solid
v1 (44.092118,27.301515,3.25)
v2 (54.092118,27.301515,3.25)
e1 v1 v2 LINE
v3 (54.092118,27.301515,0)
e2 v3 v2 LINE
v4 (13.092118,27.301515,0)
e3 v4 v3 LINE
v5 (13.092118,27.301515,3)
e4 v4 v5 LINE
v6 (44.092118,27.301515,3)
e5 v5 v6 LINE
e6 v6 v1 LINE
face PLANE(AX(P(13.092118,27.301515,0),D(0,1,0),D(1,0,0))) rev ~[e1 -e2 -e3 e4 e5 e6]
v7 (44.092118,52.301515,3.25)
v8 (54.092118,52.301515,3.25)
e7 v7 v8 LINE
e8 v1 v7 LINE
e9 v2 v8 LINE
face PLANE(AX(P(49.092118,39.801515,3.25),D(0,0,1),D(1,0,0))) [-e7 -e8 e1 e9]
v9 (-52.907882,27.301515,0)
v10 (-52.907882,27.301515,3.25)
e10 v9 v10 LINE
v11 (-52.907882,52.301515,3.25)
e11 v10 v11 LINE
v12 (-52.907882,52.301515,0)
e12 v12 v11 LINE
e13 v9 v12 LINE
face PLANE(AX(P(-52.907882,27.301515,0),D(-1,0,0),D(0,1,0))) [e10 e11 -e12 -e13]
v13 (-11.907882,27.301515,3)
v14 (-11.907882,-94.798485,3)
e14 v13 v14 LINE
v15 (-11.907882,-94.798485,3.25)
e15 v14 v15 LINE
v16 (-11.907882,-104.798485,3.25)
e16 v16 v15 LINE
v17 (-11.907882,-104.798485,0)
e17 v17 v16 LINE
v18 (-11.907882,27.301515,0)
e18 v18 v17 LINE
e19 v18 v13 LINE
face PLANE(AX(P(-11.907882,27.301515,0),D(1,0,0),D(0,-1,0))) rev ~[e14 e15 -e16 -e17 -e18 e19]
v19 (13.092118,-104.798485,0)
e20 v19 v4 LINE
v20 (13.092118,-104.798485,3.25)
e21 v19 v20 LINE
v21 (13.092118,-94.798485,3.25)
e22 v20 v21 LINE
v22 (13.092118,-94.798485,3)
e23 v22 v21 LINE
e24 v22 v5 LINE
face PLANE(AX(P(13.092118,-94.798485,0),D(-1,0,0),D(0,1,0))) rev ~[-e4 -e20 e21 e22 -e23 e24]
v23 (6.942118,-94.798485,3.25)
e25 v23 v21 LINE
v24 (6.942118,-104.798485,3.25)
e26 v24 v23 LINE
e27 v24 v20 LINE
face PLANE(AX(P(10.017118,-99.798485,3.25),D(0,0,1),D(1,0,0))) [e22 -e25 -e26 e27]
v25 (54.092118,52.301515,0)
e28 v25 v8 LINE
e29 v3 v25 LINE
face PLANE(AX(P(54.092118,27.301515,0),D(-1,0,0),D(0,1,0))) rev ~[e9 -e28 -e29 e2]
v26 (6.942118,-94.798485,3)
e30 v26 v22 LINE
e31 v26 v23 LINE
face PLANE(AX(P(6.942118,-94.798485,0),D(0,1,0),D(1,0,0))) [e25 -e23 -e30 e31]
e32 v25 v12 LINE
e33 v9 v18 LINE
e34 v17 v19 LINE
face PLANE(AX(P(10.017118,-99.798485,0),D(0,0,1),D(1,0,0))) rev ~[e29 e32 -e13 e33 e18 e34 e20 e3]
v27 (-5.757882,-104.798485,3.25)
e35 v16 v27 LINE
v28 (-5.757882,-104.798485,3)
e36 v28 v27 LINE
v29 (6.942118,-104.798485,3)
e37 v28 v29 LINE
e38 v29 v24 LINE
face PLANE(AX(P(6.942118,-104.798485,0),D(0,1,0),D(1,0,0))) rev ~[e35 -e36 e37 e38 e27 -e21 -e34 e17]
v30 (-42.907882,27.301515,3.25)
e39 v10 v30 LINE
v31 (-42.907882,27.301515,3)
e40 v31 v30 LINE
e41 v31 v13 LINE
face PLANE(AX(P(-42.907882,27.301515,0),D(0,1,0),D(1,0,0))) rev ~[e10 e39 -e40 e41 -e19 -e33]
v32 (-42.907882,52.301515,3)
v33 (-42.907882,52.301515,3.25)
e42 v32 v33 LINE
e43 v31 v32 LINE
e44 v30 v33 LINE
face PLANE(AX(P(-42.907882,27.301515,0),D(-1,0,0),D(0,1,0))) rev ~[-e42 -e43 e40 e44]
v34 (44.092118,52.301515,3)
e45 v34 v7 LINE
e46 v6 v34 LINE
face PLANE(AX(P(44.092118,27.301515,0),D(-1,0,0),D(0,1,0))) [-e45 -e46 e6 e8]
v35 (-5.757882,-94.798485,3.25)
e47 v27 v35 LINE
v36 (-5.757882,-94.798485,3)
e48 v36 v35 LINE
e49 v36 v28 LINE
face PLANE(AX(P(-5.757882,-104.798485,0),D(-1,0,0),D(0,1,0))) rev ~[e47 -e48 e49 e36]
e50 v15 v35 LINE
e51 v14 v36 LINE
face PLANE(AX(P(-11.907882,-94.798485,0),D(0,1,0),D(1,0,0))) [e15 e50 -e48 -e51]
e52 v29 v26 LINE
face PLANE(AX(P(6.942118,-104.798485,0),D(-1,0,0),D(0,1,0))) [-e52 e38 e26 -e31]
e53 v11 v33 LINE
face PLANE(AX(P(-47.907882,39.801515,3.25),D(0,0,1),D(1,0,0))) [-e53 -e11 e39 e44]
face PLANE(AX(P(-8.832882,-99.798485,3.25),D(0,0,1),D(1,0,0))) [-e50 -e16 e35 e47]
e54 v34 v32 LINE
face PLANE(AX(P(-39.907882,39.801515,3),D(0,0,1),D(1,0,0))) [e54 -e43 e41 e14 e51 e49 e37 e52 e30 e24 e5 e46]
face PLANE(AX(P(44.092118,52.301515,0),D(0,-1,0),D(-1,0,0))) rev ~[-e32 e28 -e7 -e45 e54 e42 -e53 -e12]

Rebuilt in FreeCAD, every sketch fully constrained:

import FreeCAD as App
import Part
import Sketcher

V = App.Vector
Q = App.Units.Quantity

doc = App.newDocument("Part")
body = doc.addObject("PartDesign::Body", "Body")

# Sketch on XY plane
sketch1 = body.newObject("Sketcher::SketchObject", "Sketch")
sketch1.AttachmentSupport = (doc.getObject("XY_Plane"), [""])
sketch1.MapMode = "FlatFace"
sketch1.addGeometry(Part.LineSegment(V(-42.907882, 52.301515, 0), V(-42.907882, 27.301515, 0)), False)
sketch1.addGeometry(Part.LineSegment(V(-42.907882, 27.301515, 0), V(-11.907882, 27.301515, 0)), False)
sketch1.addGeometry(Part.LineSegment(V(-11.907882, 27.301515, 0), V(-11.907882, -94.798485, 0)), False)
sketch1.addGeometry(Part.LineSegment(V(-11.907882, -94.798485, 0), V(-5.757882, -94.798485, 0)), False)
sketch1.addGeometry(Part.LineSegment(V(-5.757882, -94.798485, 0), V(-5.757882, -104.798485, 0)), False)
sketch1.addGeometry(Part.LineSegment(V(-5.757882, -104.798485, 0), V(6.942118, -104.798485, 0)), False)
sketch1.addGeometry(Part.LineSegment(V(6.942118, -104.798485, 0), V(6.942118, -94.798485, 0)), False)
sketch1.addGeometry(Part.LineSegment(V(6.942118, -94.798485, 0), V(13.092118, -94.798485, 0)), False)
sketch1.addGeometry(Part.LineSegment(V(13.092118, -94.798485, 0), V(13.092118, 27.301515, 0)), False)
sketch1.addGeometry(Part.LineSegment(V(13.092118, 27.301515, 0), V(44.092118, 27.301515, 0)), False)
sketch1.addGeometry(Part.LineSegment(V(44.092118, 27.301515, 0), V(44.092118, 52.301515, 0)), False)
sketch1.addGeometry(Part.LineSegment(V(44.092118, 52.301515, 0), V(-42.907882, 52.301515, 0)), False)
sketch1.addConstraint(Sketcher.Constraint("Coincident", 0, 2, 1, 1))
sketch1.addConstraint(Sketcher.Constraint("Coincident", 1, 2, 2, 1))
sketch1.addConstraint(Sketcher.Constraint("Coincident", 2, 2, 3, 1))
sketch1.addConstraint(Sketcher.Constraint("Coincident", 3, 2, 4, 1))
sketch1.addConstraint(Sketcher.Constraint("Coincident", 4, 2, 5, 1))
sketch1.addConstraint(Sketcher.Constraint("Coincident", 5, 2, 6, 1))
sketch1.addConstraint(Sketcher.Constraint("Coincident", 6, 2, 7, 1))
sketch1.addConstraint(Sketcher.Constraint("Coincident", 7, 2, 8, 1))
sketch1.addConstraint(Sketcher.Constraint("Coincident", 8, 2, 9, 1))
sketch1.addConstraint(Sketcher.Constraint("Coincident", 9, 2, 10, 1))
sketch1.addConstraint(Sketcher.Constraint("Coincident", 10, 2, 11, 1))
sketch1.addConstraint(Sketcher.Constraint("Coincident", 11, 2, 0, 1))
sketch1.addConstraint(Sketcher.Constraint("Vertical", 0))
sketch1.addConstraint(Sketcher.Constraint("Horizontal", 1))
sketch1.addConstraint(Sketcher.Constraint("Vertical", 2))
sketch1.addConstraint(Sketcher.Constraint("Horizontal", 3))
sketch1.addConstraint(Sketcher.Constraint("Vertical", 4))
sketch1.addConstraint(Sketcher.Constraint("Horizontal", 5))
sketch1.addConstraint(Sketcher.Constraint("Vertical", 6))
sketch1.addConstraint(Sketcher.Constraint("Horizontal", 7))
sketch1.addConstraint(Sketcher.Constraint("Vertical", 8))
sketch1.addConstraint(Sketcher.Constraint("Horizontal", 9))
sketch1.addConstraint(Sketcher.Constraint("Vertical", 10))
sketch1.addConstraint(Sketcher.Constraint("Horizontal", 11))
sketch1.addConstraint(Sketcher.Constraint("Horizontal", 3, 2, 6, 2))
sketch1.addConstraint(Sketcher.Constraint("Horizontal", 1, 2, 8, 2))
sketch1.addConstraint(Sketcher.Constraint("Equal", 3, 7))
sketch1.addConstraint(Sketcher.Constraint("Equal", 1, 9))
sketch1.addConstraint(Sketcher.Constraint("DistanceX", 1, 1, 1, 2, Q("31 mm")))
sketch1.addConstraint(Sketcher.Constraint("DistanceX", 11, 2, 11, 1, Q("87 mm")))
sketch1.addConstraint(Sketcher.Constraint("DistanceY", 0, 2, 0, 1, Q("25 mm")))
sketch1.addConstraint(Sketcher.Constraint("DistanceY", 4, 2, 4, 1, Q("10 mm")))
sketch1.addConstraint(Sketcher.Constraint("DistanceX", 5, 1, 5, 2, Q("12.7 mm")))
sketch1.addConstraint(Sketcher.Constraint("DistanceY", 2, 2, 2, 1, Q("122.1 mm")))
sketch1.addConstraint(Sketcher.Constraint("DistanceX", 0, 2, -1, 1, Q("42.907882 mm")))
sketch1.addConstraint(Sketcher.Constraint("DistanceY", -1, 1, 0, 2, Q("27.301515 mm")))
pad1 = body.newObject("PartDesign::Pad", "Pad")
pad1.Profile = sketch1
pad1.Length = 3

# Sketch on XY plane
sketch2 = body.newObject("Sketcher::SketchObject", "Sketch001")
sketch2.AttachmentSupport = (doc.getObject("XY_Plane"), [""])
sketch2.MapMode = "FlatFace"
sketch2.addGeometry(Part.LineSegment(V(6.942118, -94.798485, 0), V(6.942118, -104.798485, 0)), False)
sketch2.addGeometry(Part.LineSegment(V(6.942118, -104.798485, 0), V(13.092118, -104.798485, 0)), False)
sketch2.addGeometry(Part.LineSegment(V(13.092118, -104.798485, 0), V(13.092118, -94.798485, 0)), False)
sketch2.addGeometry(Part.LineSegment(V(13.092118, -94.798485, 0), V(6.942118, -94.798485, 0)), False)
sketch2.addGeometry(Part.LineSegment(V(-11.907882, -94.798485, 0), V(-11.907882, -104.798485, 0)), False)
sketch2.addGeometry(Part.LineSegment(V(-11.907882, -104.798485, 0), V(-5.757882, -104.798485, 0)), False)
sketch2.addGeometry(Part.LineSegment(V(-5.757882, -104.798485, 0), V(-5.757882, -94.798485, 0)), False)
sketch2.addGeometry(Part.LineSegment(V(-5.757882, -94.798485, 0), V(-11.907882, -94.798485, 0)), False)
sketch2.addGeometry(Part.LineSegment(V(-52.907882, 52.301515, 0), V(-52.907882, 27.301515, 0)), False)
sketch2.addGeometry(Part.LineSegment(V(-52.907882, 27.301515, 0), V(-42.907882, 27.301515, 0)), False)
sketch2.addGeometry(Part.LineSegment(V(-42.907882, 27.301515, 0), V(-42.907882, 52.301515, 0)), False)
sketch2.addGeometry(Part.LineSegment(V(-42.907882, 52.301515, 0), V(-52.907882, 52.301515, 0)), False)
sketch2.addGeometry(Part.LineSegment(V(44.092118, 52.301515, 0), V(44.092118, 27.301515, 0)), False)
sketch2.addGeometry(Part.LineSegment(V(44.092118, 27.301515, 0), V(54.092118, 27.301515, 0)), False)
sketch2.addGeometry(Part.LineSegment(V(54.092118, 27.301515, 0), V(54.092118, 52.301515, 0)), False)
sketch2.addGeometry(Part.LineSegment(V(54.092118, 52.301515, 0), V(44.092118, 52.301515, 0)), False)
sketch2.addConstraint(Sketcher.Constraint("Coincident", 0, 2, 1, 1))
sketch2.addConstraint(Sketcher.Constraint("Coincident", 1, 2, 2, 1))
sketch2.addConstraint(Sketcher.Constraint("Coincident", 2, 2, 3, 1))
sketch2.addConstraint(Sketcher.Constraint("Coincident", 3, 2, 0, 1))
sketch2.addConstraint(Sketcher.Constraint("Coincident", 4, 2, 5, 1))
sketch2.addConstraint(Sketcher.Constraint("Coincident", 5, 2, 6, 1))
sketch2.addConstraint(Sketcher.Constraint("Coincident", 6, 2, 7, 1))
sketch2.addConstraint(Sketcher.Constraint("Coincident", 7, 2, 4, 1))
sketch2.addConstraint(Sketcher.Constraint("Coincident", 8, 2, 9, 1))
sketch2.addConstraint(Sketcher.Constraint("Coincident", 9, 2, 10, 1))
sketch2.addConstraint(Sketcher.Constraint("Coincident", 10, 2, 11, 1))
sketch2.addConstraint(Sketcher.Constraint("Coincident", 11, 2, 8, 1))
sketch2.addConstraint(Sketcher.Constraint("Coincident", 12, 2, 13, 1))
sketch2.addConstraint(Sketcher.Constraint("Coincident", 13, 2, 14, 1))
sketch2.addConstraint(Sketcher.Constraint("Coincident", 14, 2, 15, 1))
sketch2.addConstraint(Sketcher.Constraint("Coincident", 15, 2, 12, 1))
sketch2.addConstraint(Sketcher.Constraint("Vertical", 0))
sketch2.addConstraint(Sketcher.Constraint("Horizontal", 1))
sketch2.addConstraint(Sketcher.Constraint("Vertical", 2))
sketch2.addConstraint(Sketcher.Constraint("Horizontal", 3))
sketch2.addConstraint(Sketcher.Constraint("Vertical", 4))
sketch2.addConstraint(Sketcher.Constraint("Horizontal", 5))
sketch2.addConstraint(Sketcher.Constraint("Vertical", 6))
sketch2.addConstraint(Sketcher.Constraint("Horizontal", 7))
sketch2.addConstraint(Sketcher.Constraint("Vertical", 8))
sketch2.addConstraint(Sketcher.Constraint("Horizontal", 9))
sketch2.addConstraint(Sketcher.Constraint("Vertical", 10))
sketch2.addConstraint(Sketcher.Constraint("Horizontal", 11))
sketch2.addConstraint(Sketcher.Constraint("Vertical", 12))
sketch2.addConstraint(Sketcher.Constraint("Horizontal", 13))
sketch2.addConstraint(Sketcher.Constraint("Vertical", 14))
sketch2.addConstraint(Sketcher.Constraint("Horizontal", 15))
sketch2.addConstraint(Sketcher.Constraint("Horizontal", 1, 2, 4, 2))
sketch2.addConstraint(Sketcher.Constraint("Horizontal", 3, 2, 6, 2))
sketch2.addConstraint(Sketcher.Constraint("Horizontal", 9, 2, 12, 2))
sketch2.addConstraint(Sketcher.Constraint("Horizontal", 11, 2, 14, 2))
sketch2.addConstraint(Sketcher.Constraint("Equal", 3, 5))
sketch2.addConstraint(Sketcher.Constraint("Equal", 11, 13))
sketch2.addConstraint(Sketcher.Constraint("Equal", 15, 0))
sketch2.addConstraint(Sketcher.Constraint("DistanceX", 9, 1, 9, 2, Q("10 mm")))
sketch2.addConstraint(Sketcher.Constraint("DistanceY", 8, 2, 8, 1, Q("25 mm")))
sketch2.addConstraint(Sketcher.Constraint("DistanceX", 4, 2, 1, 2, Q("25 mm")))
sketch2.addConstraint(Sketcher.Constraint("DistanceX", 8, 2, 7, 2, Q("41 mm")))
sketch2.addConstraint(Sketcher.Constraint("DistanceX", 9, 2, 12, 2, Q("87 mm")))
sketch2.addConstraint(Sketcher.Constraint("DistanceX", 1, 1, 1, 2, Q("6.15 mm")))
sketch2.addConstraint(Sketcher.Constraint("DistanceY", 7, 2, 8, 2, Q("122.1 mm")))
sketch2.addConstraint(Sketcher.Constraint("DistanceX", -1, 1, 0, 2, Q("6.942118 mm")))
sketch2.addConstraint(Sketcher.Constraint("DistanceY", 0, 2, -1, 1, Q("104.798485 mm")))
pad2 = body.newObject("PartDesign::Pad", "Pad001")
pad2.Profile = sketch2
pad2.Length = 3.25

doc.recompute()
